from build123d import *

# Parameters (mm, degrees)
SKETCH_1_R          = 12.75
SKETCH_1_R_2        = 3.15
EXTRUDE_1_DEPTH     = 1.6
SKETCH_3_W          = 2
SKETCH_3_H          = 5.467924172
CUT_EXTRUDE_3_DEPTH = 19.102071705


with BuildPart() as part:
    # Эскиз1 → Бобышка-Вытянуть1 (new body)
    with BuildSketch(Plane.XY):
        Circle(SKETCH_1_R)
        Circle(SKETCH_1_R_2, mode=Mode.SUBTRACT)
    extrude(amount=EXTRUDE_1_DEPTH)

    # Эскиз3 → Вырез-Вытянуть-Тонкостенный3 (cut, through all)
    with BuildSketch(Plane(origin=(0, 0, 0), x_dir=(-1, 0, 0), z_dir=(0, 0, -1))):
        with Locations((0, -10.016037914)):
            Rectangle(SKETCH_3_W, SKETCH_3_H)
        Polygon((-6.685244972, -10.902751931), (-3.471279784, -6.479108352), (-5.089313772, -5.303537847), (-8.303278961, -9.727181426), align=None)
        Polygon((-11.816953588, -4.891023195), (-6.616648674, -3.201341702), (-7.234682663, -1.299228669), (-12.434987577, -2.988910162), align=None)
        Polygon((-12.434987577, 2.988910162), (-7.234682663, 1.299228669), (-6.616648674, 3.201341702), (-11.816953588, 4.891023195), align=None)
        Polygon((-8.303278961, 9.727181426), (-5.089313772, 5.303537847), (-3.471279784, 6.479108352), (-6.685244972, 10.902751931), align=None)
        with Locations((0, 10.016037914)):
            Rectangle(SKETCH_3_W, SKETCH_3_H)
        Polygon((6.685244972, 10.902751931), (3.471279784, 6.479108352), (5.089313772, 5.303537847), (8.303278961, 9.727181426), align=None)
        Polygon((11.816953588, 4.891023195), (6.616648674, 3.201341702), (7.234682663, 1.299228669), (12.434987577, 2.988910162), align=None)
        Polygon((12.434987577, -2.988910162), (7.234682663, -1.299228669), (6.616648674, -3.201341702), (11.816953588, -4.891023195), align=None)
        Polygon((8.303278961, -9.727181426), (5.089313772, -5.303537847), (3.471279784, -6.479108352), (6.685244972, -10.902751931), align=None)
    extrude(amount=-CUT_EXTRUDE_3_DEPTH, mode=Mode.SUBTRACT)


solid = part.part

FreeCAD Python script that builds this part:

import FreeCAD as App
import Part
import Sketcher
Q = App.Units.Quantity


def add_polygon(sketch, points):
    """Adds a closed chain of lines whose ends are joined by coincident constraints."""
    first, n = sketch.GeometryCount, len(points)
    for a, b in zip(points, points[1:] + points[:1]):
        sketch.addGeometry(Part.LineSegment(App.Vector(*a, 0), App.Vector(*b, 0)), False)
    for i in range(n):
        sketch.addConstraint(Sketcher.Constraint("Coincident", first + i, 2, first + (i + 1) % n, 1))

doc = App.newDocument("Part")
body = doc.addObject("PartDesign::Body", "Body")

sketch1 = doc.addObject("Sketcher::SketchObject", "Sketch")
body.addObject(sketch1)
sketch1.AttachmentSupport = (doc.XY_Plane, [""])
sketch1.MapMode = "FlatFace"
sketch1.addGeometry(Part.Circle(App.Vector(0, 0, 0), App.Vector(0, 0, 1), 12.8), False)
sketch1.addGeometry(Part.Circle(App.Vector(0, 0, 0), App.Vector(0, 0, 1), 3.1), False)
sketch1.addConstraint(Sketcher.Constraint("Coincident", 0, 3, -1, 1))
sketch1.addConstraint(Sketcher.Constraint("Coincident", 1, 3, -1, 1))
sketch1.addConstraint(Sketcher.Constraint("Diameter", 0, Q("25.5 mm")))
sketch1.addConstraint(Sketcher.Constraint("Diameter", 1, Q("6.3 mm")))
pad1 = doc.addObject("PartDesign::Pad", "Pad")
body.addObject(pad1)
pad1.Profile = sketch1
pad1.Length = 1.6

sketch2 = doc.addObject("Sketcher::SketchObject", "Sketch001")
body.addObject(sketch2)
sketch2.AttachmentSupport = (doc.XY_Plane, [""])
sketch2.MapMode = "FlatFace"
add_polygon(sketch2, [(1, -7.3), (1, -12.8), (-1, -12.8), (-1, -7.3)])
add_polygon(sketch2, [(6.7, -10.9), (3.5, -6.5), (5.1, -5.3), (8.3, -9.7)])
add_polygon(sketch2, [(11.8, -4.9), (6.6, -3.2), (7.2, -1.3), (12.4, -3)])
add_polygon(sketch2, [(12.4, 3), (7.2, 1.3), (6.6, 3.2), (11.8, 4.9)])
add_polygon(sketch2, [(8.3, 9.7), (5.1, 5.3), (3.5, 6.5), (6.7, 10.9)])
add_polygon(sketch2, [(1, 12.8), (1, 7.3), (-1, 7.3), (-1, 12.8)])
add_polygon(sketch2, [(-6.7, 10.9), (-3.5, 6.5), (-5.1, 5.3), (-8.3, 9.7)])
add_polygon(sketch2, [(-11.8, 4.9), (-6.6, 3.2), (-7.2, 1.3), (-12.4, 3)])
add_polygon(sketch2, [(-12.4, -3), (-7.2, -1.3), (-6.6, -3.2), (-11.8, -4.9)])
add_polygon(sketch2, [(-8.3, -9.7), (-5.1, -5.3), (-3.5, -6.5), (-6.7, -10.9)])
sketch2.addConstraint(Sketcher.Constraint("Vertical", 0))
sketch2.addConstraint(Sketcher.Constraint("Horizontal", 1))
sketch2.addConstraint(Sketcher.Constraint("Vertical", 2))
sketch2.addConstraint(Sketcher.Constraint("Horizontal", 3))
sketch2.addConstraint(Sketcher.Constraint("Vertical", 20))
sketch2.addConstraint(Sketcher.Constraint("Horizontal", 21))
sketch2.addConstraint(Sketcher.Constraint("Vertical", 22))
sketch2.addConstraint(Sketcher.Constraint("Horizontal", 23))
sketch2.addConstraint(Sketcher.Constraint("Symmetric", 2, 2, 20, 2, -1, 1))
sketch2.addConstraint(Sketcher.Constraint("Symmetric", 0, 2, 22, 2, -1, 1))
sketch2.addConstraint(Sketcher.Constraint("Symmetric", 4, 2, 24, 2, -1, 1))
sketch2.addConstraint(Sketcher.Constraint("Symmetric", 5, 2, 25, 2, -1, 1))
sketch2.addConstraint(Sketcher.Constraint("Symmetric", 6, 2, 26, 2, -1, 1))
sketch2.addConstraint(Sketcher.Constraint("Symmetric", 7, 2, 27, 2, -1, 1))
sketch2.addConstraint(Sketcher.Constraint("Symmetric", 8, 2, 28, 2, -1, 1))
sketch2.addConstraint(Sketcher.Constraint("Symmetric", 9, 2, 29, 2, -1, 1))
sketch2.addConstraint(Sketcher.Constraint("Symmetric", 10, 2, 30, 2, -1, 1))
sketch2.addConstraint(Sketcher.Constraint("Symmetric", 11, 2, 31, 2, -1, 1))
sketch2.addConstraint(Sketcher.Constraint("Symmetric", 12, 2, 32, 2, -1, 1))
sketch2.addConstraint(Sketcher.Constraint("Symmetric", 13, 2, 33, 2, -1, 1))
sketch2.addConstraint(Sketcher.Constraint("Symmetric", 14, 2, 34, 2, -1, 1))
sketch2.addConstraint(Sketcher.Constraint("Symmetric", 15, 2, 35, 2, -1, 1))
sketch2.addConstraint(Sketcher.Constraint("Symmetric", 16, 2, 36, 2, -1, 1))
sketch2.addConstraint(Sketcher.Constraint("Symmetric", 17, 2, 37, 2, -1, 1))
sketch2.addConstraint(Sketcher.Constraint("Symmetric", 18, 2, 38, 2, -1, 1))
sketch2.addConstraint(Sketcher.Constraint("Symmetric", 19, 2, 39, 2, -1, 1))
sketch2.addConstraint(Sketcher.Constraint("Symmetric", 17, 2, 24, 2, -2))
sketch2.addConstraint(Sketcher.Constraint("Symmetric", 16, 2, 25, 2, -2))
sketch2.addConstraint(Sketcher.Constraint("Symmetric", 19, 2, 26, 2, -2))
sketch2.addConstraint(Sketcher.Constraint("Symmetric", 18, 2, 27, 2, -2))
sketch2.addConstraint(Sketcher.Constraint("Symmetric", 13, 2, 28, 2, -2))
sketch2.addConstraint(Sketcher.Constraint("Symmetric", 12, 2, 29, 2, -2))
sketch2.addConstraint(Sketcher.Constraint("Symmetric", 15, 2, 30, 2, -2))
sketch2.addConstraint(Sketcher.Constraint("Symmetric", 14, 2, 31, 2, -2))
sketch2.addConstraint(Sketcher.Constraint("Perpendicular", 4, 5))
sketch2.addConstraint(Sketcher.Constraint("Perpendicular", 5, 6))
sketch2.addConstraint(Sketcher.Constraint("Perpendicular", 6, 7))
sketch2.addConstraint(Sketcher.Constraint("Perpendicular", 8, 9))
sketch2.addConstraint(Sketcher.Constraint("Perpendicular", 9, 10))
sketch2.addConstraint(Sketcher.Constraint("Perpendicular", 10, 11))
sketch2.addConstraint(Sketcher.Constraint("Vertical", 3, 2, 20, 2))
sketch2.addConstraint(Sketcher.Constraint("Equal", 6, 8))
sketch2.addConstraint(Sketcher.Constraint("Equal", 7, 9))
sketch2.addConstraint(Sketcher.Constraint("DistanceX", 1, 2, 1, 1, Q("2 mm")))
sketch2.addConstraint(Sketcher.Constraint("Angle", 4, Q("126 deg")))
sketch2.addConstraint(Sketcher.Constraint("Angle", 8, Q("162 deg")))
sketch2.addConstraint(Sketcher.Constraint("Distance", 5, Q("2 mm")))
sketch2.addConstraint(Sketcher.Constraint("DistanceY", 0, 2, -1, 1, Q("12.75 mm")))
sketch2.addConstraint(Sketcher.Constraint("DistanceX", 4, 2, 6, 2, Q("4.831999 mm")))
sketch2.addConstraint(Sketcher.Constraint("DistanceY", 4, 2, 10, 2, Q("3.490198 mm")))
sketch2.addConstraint(Sketcher.Constraint("DistanceY", 0, 2, 0, 1, Q("5.467924 mm")))
sketch2.addConstraint(Sketcher.Constraint("DistanceX", -1, 1, 4, 2, Q("3.47128 mm")))
sketch2.addConstraint(Sketcher.Constraint("DistanceY", 4, 2, -1, 1, Q("6.479108 mm")))
sketch2.addConstraint(Sketcher.Constraint("DistanceX", -1, 1, 8, 2, Q("6.616649 mm")))
pocket1 = doc.addObject("PartDesign::Pocket", "Pocket")
body.addObject(pocket1)
pocket1.Profile = sketch2
pocket1.Type = "ThroughAll"
pocket1.Reversed = True

doc.recompute()
